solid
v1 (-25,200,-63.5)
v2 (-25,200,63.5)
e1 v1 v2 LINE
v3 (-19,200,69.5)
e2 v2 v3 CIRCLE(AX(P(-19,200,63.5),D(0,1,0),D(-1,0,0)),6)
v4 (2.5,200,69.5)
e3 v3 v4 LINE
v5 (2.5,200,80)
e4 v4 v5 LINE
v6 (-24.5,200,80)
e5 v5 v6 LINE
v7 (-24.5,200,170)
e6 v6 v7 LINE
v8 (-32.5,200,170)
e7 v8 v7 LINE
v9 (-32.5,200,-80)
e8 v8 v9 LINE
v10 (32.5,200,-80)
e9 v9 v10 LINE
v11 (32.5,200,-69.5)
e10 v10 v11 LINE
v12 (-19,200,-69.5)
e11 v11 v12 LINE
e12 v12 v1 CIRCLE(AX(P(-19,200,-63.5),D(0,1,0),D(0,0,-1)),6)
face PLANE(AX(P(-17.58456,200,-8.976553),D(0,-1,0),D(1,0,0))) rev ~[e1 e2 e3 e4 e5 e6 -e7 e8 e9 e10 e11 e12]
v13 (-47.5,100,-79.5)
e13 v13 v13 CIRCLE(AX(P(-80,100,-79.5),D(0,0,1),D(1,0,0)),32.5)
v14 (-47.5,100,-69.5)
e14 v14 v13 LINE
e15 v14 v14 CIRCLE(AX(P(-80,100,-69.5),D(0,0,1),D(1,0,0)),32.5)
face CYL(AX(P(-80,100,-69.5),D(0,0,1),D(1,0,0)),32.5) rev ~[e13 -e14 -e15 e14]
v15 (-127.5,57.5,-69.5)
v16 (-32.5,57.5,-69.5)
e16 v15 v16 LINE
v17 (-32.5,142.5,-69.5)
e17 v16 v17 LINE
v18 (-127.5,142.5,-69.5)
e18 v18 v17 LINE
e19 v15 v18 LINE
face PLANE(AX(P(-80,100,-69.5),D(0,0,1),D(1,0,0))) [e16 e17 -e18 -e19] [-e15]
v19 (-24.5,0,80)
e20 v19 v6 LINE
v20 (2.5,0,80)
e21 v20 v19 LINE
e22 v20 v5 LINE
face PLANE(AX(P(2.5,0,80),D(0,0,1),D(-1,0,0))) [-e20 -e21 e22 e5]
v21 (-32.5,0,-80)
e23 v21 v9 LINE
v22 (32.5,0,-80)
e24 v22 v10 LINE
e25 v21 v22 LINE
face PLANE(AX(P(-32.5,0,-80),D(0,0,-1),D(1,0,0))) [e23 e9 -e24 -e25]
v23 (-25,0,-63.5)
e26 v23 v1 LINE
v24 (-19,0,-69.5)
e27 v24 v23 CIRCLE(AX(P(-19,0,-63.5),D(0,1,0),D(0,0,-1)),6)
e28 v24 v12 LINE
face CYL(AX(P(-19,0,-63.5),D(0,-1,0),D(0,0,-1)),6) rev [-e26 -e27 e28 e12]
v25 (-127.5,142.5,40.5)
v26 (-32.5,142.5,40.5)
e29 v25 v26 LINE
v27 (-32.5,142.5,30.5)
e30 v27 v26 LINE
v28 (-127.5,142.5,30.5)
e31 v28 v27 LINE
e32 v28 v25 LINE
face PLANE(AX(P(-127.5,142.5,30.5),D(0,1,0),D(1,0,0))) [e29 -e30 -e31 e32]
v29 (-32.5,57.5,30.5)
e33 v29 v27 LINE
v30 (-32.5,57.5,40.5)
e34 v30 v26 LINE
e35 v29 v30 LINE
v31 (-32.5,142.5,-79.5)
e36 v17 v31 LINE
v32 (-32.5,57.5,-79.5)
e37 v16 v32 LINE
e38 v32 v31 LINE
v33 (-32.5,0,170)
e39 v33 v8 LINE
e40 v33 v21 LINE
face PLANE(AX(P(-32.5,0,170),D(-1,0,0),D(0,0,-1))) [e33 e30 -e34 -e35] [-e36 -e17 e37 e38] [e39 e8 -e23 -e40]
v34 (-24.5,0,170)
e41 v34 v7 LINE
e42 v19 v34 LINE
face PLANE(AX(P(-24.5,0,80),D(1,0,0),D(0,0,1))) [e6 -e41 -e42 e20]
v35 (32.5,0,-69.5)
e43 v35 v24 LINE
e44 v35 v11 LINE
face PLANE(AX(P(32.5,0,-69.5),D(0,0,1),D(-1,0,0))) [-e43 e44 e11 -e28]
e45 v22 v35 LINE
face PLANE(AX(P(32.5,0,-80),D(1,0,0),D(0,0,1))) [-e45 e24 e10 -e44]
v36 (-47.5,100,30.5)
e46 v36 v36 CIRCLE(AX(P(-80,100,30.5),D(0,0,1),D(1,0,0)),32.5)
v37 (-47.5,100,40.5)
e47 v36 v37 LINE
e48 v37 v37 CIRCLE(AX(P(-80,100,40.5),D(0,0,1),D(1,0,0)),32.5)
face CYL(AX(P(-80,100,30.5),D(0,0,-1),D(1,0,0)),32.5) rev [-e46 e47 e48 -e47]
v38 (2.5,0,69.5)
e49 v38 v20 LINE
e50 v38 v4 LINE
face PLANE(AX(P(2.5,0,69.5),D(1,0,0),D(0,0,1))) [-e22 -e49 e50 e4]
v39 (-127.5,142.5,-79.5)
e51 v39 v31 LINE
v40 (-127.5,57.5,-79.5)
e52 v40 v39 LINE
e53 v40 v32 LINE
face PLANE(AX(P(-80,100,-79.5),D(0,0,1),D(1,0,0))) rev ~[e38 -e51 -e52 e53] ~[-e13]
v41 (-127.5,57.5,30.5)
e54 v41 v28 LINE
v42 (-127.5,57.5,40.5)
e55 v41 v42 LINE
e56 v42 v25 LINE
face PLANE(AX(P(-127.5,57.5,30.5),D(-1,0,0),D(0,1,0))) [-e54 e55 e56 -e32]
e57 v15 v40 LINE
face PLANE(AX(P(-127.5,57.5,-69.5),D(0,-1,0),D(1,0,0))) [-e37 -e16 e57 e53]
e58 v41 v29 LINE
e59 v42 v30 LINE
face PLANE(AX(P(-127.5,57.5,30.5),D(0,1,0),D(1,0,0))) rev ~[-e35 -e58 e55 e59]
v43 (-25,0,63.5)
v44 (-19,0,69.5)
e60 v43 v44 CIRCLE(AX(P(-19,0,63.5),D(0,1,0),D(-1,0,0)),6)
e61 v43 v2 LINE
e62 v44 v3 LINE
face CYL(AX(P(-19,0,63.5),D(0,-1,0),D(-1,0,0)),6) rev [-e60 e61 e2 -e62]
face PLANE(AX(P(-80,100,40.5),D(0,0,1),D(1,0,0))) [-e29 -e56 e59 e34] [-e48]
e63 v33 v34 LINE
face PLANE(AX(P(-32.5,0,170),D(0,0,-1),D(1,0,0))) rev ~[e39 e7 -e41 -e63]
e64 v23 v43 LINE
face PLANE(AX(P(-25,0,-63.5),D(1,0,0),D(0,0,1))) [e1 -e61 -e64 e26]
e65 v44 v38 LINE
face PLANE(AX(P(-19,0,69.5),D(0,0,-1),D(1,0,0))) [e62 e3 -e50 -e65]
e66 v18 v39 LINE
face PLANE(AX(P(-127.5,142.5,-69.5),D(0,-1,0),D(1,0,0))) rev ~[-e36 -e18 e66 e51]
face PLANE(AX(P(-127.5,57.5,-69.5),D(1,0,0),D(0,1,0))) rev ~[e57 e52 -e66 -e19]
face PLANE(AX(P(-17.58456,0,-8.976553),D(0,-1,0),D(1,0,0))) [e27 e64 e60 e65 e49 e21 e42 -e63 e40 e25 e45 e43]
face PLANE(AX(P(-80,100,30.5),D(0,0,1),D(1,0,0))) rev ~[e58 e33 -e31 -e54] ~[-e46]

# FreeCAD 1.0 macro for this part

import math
import FreeCAD as App
import Part
import Sketcher

V = App.Vector

doc = App.newDocument("Part")
params = doc.addObject("Spreadsheet::Sheet", "Params")
for row, (alias, value) in enumerate([
    ("sketch1_radius", "6 mm"),
    ("sketch1_width", "27 mm"),
    ("sketch1_width2", "8 mm"),
    ("sketch1_width3", "65 mm"),
    ("sketch1_height", "90 mm"),
    ("pad1_length", "200 mm"),
    ("sketch2_diameter", "65 mm"),
    ("sketch2_width", "95 mm"),
    ("sketch2_height", "85 mm"),
    ("pad2_length", "10 mm"),
    ("sketch3_diameter", "65 mm"),
    ("sketch3_width", "95 mm"),
    ("sketch3_height", "85 mm"),
    ("pad3_length", "10 mm"),
], start=1):
    params.set(f"A{row}", alias)
    params.set(f"B{row}", "=" + value)
    params.setAlias(f"B{row}", alias)

body = doc.addObject("PartDesign::Body", "Body")

sketch1 = doc.addObject("Sketcher::SketchObject", "Sketch")
body.addObject(sketch1)
sketch1.AttachmentSupport = (doc.XZ_Plane, [""])
sketch1.MapMode = "FlatFace"
sketch1.addGeometry(Part.LineSegment(V(2.5, 69.5, 0), V(2.5, 80, 0)), False)
sketch1.addGeometry(Part.LineSegment(V(2.5, 80, 0), V(-24.5, 80, 0)), False)
sketch1.addGeometry(Part.LineSegment(V(-24.5, 80, 0), V(-24.5, 170, 0)), False)
sketch1.addGeometry(Part.LineSegment(V(-24.5, 170, 0), V(-32.5, 170, 0)), False)
sketch1.addGeometry(Part.LineSegment(V(-32.5, 170, 0), V(-32.5, -80, 0)), False)
sketch1.addGeometry(Part.LineSegment(V(-32.5, -80, 0), V(32.5, -80, 0)), False)
sketch1.addGeometry(Part.LineSegment(V(32.5, -80, 0), V(32.5, -69.5, 0)), False)
sketch1.addGeometry(Part.LineSegment(V(32.5, -69.5, 0), V(-19, -69.5, 0)), False)
sketch1.addGeometry(Part.ArcOfCircle(Part.Circle(V(-19, -63.5, 0), V(0, 0, 1), 6), math.radians(180), math.radians(270)), False)
sketch1.addGeometry(Part.LineSegment(V(-25, -63.5, 0), V(-25, 63.5, 0)), False)
sketch1.addGeometry(Part.ArcOfCircle(Part.Circle(V(-19, 63.5, 0), V(0, 0, 1), 6), math.radians(90), math.radians(180)), False)
sketch1.addGeometry(Part.LineSegment(V(-19, 69.5, 0), V(2.5, 69.5, 0)), False)
sketch1.addConstraint(Sketcher.Constraint("Coincident", 0, 2, 1, 1))
sketch1.addConstraint(Sketcher.Constraint("Coincident", 1, 2, 2, 1))
sketch1.addConstraint(Sketcher.Constraint("Coincident", 2, 2, 3, 1))
sketch1.addConstraint(Sketcher.Constraint("Coincident", 3, 2, 4, 1))
sketch1.addConstraint(Sketcher.Constraint("Coincident", 4, 2, 5, 1))
sketch1.addConstraint(Sketcher.Constraint("Coincident", 5, 2, 6, 1))
sketch1.addConstraint(Sketcher.Constraint("Coincident", 6, 2, 7, 1))
sketch1.addConstraint(Sketcher.Constraint("Tangent", 7, 2, 8, 2))
sketch1.addConstraint(Sketcher.Constraint("Tangent", 8, 1, 9, 1))
sketch1.addConstraint(Sketcher.Constraint("Tangent", 9, 2, 10, 2))
sketch1.addConstraint(Sketcher.Constraint("Tangent", 10, 1, 11, 1))
sketch1.addConstraint(Sketcher.Constraint("Coincident", 11, 2, 0, 1))
sketch1.addConstraint(Sketcher.Constraint("Vertical", 0))
sketch1.addConstraint(Sketcher.Constraint("Horizontal", 1))
sketch1.addConstraint(Sketcher.Constraint("Vertical", 2))
sketch1.addConstraint(Sketcher.Constraint("Horizontal", 3))
sketch1.addConstraint(Sketcher.Constraint("Vertical", 4))
sketch1.addConstraint(Sketcher.Constraint("Horizontal", 5))
sketch1.addConstraint(Sketcher.Constraint("Vertical", 6))
sketch1.addConstraint(Sketcher.Constraint("Horizontal", 7))
sketch1.addConstraint(Sketcher.Constraint("Vertical", 9))
sketch1.addConstraint(Sketcher.Constraint("Horizontal", 11))
sketch1.addConstraint(Sketcher.Constraint("Equal", 8, 10))
sketch1.addConstraint(Sketcher.Constraint("Equal", 0, 6))
sketch1.addConstraint(Sketcher.Constraint("Radius", 8, 6.0))
sketch1.addConstraint(Sketcher.Constraint("DistanceX", 1, 2, 1, 1, 27.0))
sketch1.addConstraint(Sketcher.Constraint("DistanceX", 3, 2, 3, 1, 8.0))
sketch1.addConstraint(Sketcher.Constraint("DistanceX", 5, 1, 5, 2, 65.0))
sketch1.addConstraint(Sketcher.Constraint("DistanceY", 2, 1, 2, 2, 90.0))
sketch1.addConstraint(Sketcher.Constraint("DistanceY", 4, 2, 4, 1, 250.0))
sketch1.addConstraint(Sketcher.Constraint("DistanceY", 9, 1, 9, 2, 127.0))
sketch1.addConstraint(Sketcher.Constraint("DistanceX", 7, 2, 7, 1, 51.5))
sketch1.addConstraint(Sketcher.Constraint("DistanceX", 8, 3, -1, 1, 19.0))
sketch1.addConstraint(Sketcher.Constraint("DistanceY", -1, 1, 0, 2, 80.0))
sketch1.setExpression("Constraints[24]", "Params.sketch1_radius")
sketch1.setExpression("Constraints[25]", "Params.sketch1_width")
sketch1.setExpression("Constraints[26]", "Params.sketch1_width2")
sketch1.setExpression("Constraints[27]", "Params.sketch1_width3")
sketch1.setExpression("Constraints[28]", "Params.sketch1_height")
pad1 = doc.addObject("PartDesign::Pad", "Pad")
body.addObject(pad1)
pad1.Profile = sketch1
pad1.setExpression("Length", "Params.pad1_length")
pad1.Reversed = True

sketch2 = doc.addObject("Sketcher::SketchObject", "Sketch001")
body.addObject(sketch2)
sketch2.AttachmentSupport = (doc.XY_Plane, [""])
sketch2.MapMode = "FlatFace"
sketch2.AttachmentOffset = App.Placement(V(0, 0, -69.5), App.Rotation())
sketch2.addGeometry(Part.LineSegment(V(-127.5, 142.5, 0), V(-127.5, 57.5, 0)), False)
sketch2.addGeometry(Part.LineSegment(V(-127.5, 57.5, 0), V(-32.5, 57.5, 0)), False)
sketch2.addGeometry(Part.LineSegment(V(-32.5, 57.5, 0), V(-32.5, 142.5, 0)), False)
sketch2.addGeometry(Part.LineSegment(V(-32.5, 142.5, 0), V(-127.5, 142.5, 0)), False)
sketch2.addGeometry(Part.Circle(V(-80, 100, 0), V(0, 0, 1), 32.5), False)
sketch2.addConstraint(Sketcher.Constraint("Coincident", 0, 2, 1, 1))
sketch2.addConstraint(Sketcher.Constraint("Coincident", 1, 2, 2, 1))
sketch2.addConstraint(Sketcher.Constraint("Coincident", 2, 2, 3, 1))
sketch2.addConstraint(Sketcher.Constraint("Coincident", 3, 2, 0, 1))
sketch2.addConstraint(Sketcher.Constraint("Vertical", 0))
sketch2.addConstraint(Sketcher.Constraint("Horizontal", 1))
sketch2.addConstraint(Sketcher.Constraint("Vertical", 2))
sketch2.addConstraint(Sketcher.Constraint("Horizontal", 3))
sketch2.addConstraint(Sketcher.Constraint("Diameter", 4, 65.0))
sketch2.addConstraint(Sketcher.Constraint("DistanceX", 1, 1, 1, 2, 95.0))
sketch2.addConstraint(Sketcher.Constraint("DistanceY", 0, 2, 0, 1, 85.0))
sketch2.addConstraint(Sketcher.Constraint("DistanceX", 4, 3, -1, 1, 80.0))
sketch2.addConstraint(Sketcher.Constraint("DistanceY", -1, 1, 4, 3, 100.0))
sketch2.addConstraint(Sketcher.Constraint("DistanceX", 0, 2, -1, 1, 127.5))
sketch2.addConstraint(Sketcher.Constraint("DistanceY", -1, 1, 0, 2, 57.5))
sketch2.setExpression("Constraints[8]", "Params.sketch2_diameter")
sketch2.setExpression("Constraints[9]", "Params.sketch2_width")
sketch2.setExpression("Constraints[10]", "Params.sketch2_height")
pad2 = doc.addObject("PartDesign::Pad", "Pad001")
body.addObject(pad2)
pad2.Profile = sketch2
pad2.setExpression("Length", "Params.pad2_length")
pad2.Reversed = True

sketch3 = doc.addObject("Sketcher::SketchObject", "Sketch002")
body.addObject(sketch3)
sketch3.AttachmentSupport = (doc.XY_Plane, [""])
sketch3.MapMode = "FlatFace"
sketch3.AttachmentOffset = App.Placement(V(0, 0, 30.5), App.Rotation())
sketch3.addGeometry(Part.LineSegment(V(-127.5, 142.5, 0), V(-127.5, 57.5, 0)), False)
sketch3.addGeometry(Part.LineSegment(V(-127.5, 57.5, 0), V(-32.5, 57.5, 0)), False)
sketch3.addGeometry(Part.LineSegment(V(-32.5, 57.5, 0), V(-32.5, 142.5, 0)), False)
sketch3.addGeometry(Part.LineSegment(V(-32.5, 142.5, 0), V(-127.5, 142.5, 0)), False)
sketch3.addGeometry(Part.Circle(V(-80, 100, 0), V(0, 0, 1), 32.5), False)
sketch3.addConstraint(Sketcher.Constraint("Coincident", 0, 2, 1, 1))
sketch3.addConstraint(Sketcher.Constraint("Coincident", 1, 2, 2, 1))
sketch3.addConstraint(Sketcher.Constraint("Coincident", 2, 2, 3, 1))
sketch3.addConstraint(Sketcher.Constraint("Coincident", 3, 2, 0, 1))
sketch3.addConstraint(Sketcher.Constraint("Vertical", 0))
sketch3.addConstraint(Sketcher.Constraint("Horizontal", 1))
sketch3.addConstraint(Sketcher.Constraint("Vertical", 2))
sketch3.addConstraint(Sketcher.Constraint("Horizontal", 3))
sketch3.addConstraint(Sketcher.Constraint("Diameter", 4, 65.0))
sketch3.addConstraint(Sketcher.Constraint("DistanceX", 1, 1, 1, 2, 95.0))
sketch3.addConstraint(Sketcher.Constraint("DistanceY", 0, 2, 0, 1, 85.0))
sketch3.addConstraint(Sketcher.Constraint("DistanceX", 4, 3, -1, 1, 80.0))
sketch3.addConstraint(Sketcher.Constraint("DistanceY", -1, 1, 4, 3, 100.0))
sketch3.addConstraint(Sketcher.Constraint("DistanceX", 0, 2, -1, 1, 127.5))
sketch3.addConstraint(Sketcher.Constraint("DistanceY", -1, 1, 0, 2, 57.5))
sketch3.setExpression("Constraints[8]", "Params.sketch3_diameter")
sketch3.setExpression("Constraints[9]", "Params.sketch3_width")
sketch3.setExpression("Constraints[10]", "Params.sketch3_height")
pad3 = doc.addObject("PartDesign::Pad", "Pad002")
body.addObject(pad3)
pad3.Profile = sketch3
pad3.setExpression("Length", "Params.pad3_length")

doc.recompute()
